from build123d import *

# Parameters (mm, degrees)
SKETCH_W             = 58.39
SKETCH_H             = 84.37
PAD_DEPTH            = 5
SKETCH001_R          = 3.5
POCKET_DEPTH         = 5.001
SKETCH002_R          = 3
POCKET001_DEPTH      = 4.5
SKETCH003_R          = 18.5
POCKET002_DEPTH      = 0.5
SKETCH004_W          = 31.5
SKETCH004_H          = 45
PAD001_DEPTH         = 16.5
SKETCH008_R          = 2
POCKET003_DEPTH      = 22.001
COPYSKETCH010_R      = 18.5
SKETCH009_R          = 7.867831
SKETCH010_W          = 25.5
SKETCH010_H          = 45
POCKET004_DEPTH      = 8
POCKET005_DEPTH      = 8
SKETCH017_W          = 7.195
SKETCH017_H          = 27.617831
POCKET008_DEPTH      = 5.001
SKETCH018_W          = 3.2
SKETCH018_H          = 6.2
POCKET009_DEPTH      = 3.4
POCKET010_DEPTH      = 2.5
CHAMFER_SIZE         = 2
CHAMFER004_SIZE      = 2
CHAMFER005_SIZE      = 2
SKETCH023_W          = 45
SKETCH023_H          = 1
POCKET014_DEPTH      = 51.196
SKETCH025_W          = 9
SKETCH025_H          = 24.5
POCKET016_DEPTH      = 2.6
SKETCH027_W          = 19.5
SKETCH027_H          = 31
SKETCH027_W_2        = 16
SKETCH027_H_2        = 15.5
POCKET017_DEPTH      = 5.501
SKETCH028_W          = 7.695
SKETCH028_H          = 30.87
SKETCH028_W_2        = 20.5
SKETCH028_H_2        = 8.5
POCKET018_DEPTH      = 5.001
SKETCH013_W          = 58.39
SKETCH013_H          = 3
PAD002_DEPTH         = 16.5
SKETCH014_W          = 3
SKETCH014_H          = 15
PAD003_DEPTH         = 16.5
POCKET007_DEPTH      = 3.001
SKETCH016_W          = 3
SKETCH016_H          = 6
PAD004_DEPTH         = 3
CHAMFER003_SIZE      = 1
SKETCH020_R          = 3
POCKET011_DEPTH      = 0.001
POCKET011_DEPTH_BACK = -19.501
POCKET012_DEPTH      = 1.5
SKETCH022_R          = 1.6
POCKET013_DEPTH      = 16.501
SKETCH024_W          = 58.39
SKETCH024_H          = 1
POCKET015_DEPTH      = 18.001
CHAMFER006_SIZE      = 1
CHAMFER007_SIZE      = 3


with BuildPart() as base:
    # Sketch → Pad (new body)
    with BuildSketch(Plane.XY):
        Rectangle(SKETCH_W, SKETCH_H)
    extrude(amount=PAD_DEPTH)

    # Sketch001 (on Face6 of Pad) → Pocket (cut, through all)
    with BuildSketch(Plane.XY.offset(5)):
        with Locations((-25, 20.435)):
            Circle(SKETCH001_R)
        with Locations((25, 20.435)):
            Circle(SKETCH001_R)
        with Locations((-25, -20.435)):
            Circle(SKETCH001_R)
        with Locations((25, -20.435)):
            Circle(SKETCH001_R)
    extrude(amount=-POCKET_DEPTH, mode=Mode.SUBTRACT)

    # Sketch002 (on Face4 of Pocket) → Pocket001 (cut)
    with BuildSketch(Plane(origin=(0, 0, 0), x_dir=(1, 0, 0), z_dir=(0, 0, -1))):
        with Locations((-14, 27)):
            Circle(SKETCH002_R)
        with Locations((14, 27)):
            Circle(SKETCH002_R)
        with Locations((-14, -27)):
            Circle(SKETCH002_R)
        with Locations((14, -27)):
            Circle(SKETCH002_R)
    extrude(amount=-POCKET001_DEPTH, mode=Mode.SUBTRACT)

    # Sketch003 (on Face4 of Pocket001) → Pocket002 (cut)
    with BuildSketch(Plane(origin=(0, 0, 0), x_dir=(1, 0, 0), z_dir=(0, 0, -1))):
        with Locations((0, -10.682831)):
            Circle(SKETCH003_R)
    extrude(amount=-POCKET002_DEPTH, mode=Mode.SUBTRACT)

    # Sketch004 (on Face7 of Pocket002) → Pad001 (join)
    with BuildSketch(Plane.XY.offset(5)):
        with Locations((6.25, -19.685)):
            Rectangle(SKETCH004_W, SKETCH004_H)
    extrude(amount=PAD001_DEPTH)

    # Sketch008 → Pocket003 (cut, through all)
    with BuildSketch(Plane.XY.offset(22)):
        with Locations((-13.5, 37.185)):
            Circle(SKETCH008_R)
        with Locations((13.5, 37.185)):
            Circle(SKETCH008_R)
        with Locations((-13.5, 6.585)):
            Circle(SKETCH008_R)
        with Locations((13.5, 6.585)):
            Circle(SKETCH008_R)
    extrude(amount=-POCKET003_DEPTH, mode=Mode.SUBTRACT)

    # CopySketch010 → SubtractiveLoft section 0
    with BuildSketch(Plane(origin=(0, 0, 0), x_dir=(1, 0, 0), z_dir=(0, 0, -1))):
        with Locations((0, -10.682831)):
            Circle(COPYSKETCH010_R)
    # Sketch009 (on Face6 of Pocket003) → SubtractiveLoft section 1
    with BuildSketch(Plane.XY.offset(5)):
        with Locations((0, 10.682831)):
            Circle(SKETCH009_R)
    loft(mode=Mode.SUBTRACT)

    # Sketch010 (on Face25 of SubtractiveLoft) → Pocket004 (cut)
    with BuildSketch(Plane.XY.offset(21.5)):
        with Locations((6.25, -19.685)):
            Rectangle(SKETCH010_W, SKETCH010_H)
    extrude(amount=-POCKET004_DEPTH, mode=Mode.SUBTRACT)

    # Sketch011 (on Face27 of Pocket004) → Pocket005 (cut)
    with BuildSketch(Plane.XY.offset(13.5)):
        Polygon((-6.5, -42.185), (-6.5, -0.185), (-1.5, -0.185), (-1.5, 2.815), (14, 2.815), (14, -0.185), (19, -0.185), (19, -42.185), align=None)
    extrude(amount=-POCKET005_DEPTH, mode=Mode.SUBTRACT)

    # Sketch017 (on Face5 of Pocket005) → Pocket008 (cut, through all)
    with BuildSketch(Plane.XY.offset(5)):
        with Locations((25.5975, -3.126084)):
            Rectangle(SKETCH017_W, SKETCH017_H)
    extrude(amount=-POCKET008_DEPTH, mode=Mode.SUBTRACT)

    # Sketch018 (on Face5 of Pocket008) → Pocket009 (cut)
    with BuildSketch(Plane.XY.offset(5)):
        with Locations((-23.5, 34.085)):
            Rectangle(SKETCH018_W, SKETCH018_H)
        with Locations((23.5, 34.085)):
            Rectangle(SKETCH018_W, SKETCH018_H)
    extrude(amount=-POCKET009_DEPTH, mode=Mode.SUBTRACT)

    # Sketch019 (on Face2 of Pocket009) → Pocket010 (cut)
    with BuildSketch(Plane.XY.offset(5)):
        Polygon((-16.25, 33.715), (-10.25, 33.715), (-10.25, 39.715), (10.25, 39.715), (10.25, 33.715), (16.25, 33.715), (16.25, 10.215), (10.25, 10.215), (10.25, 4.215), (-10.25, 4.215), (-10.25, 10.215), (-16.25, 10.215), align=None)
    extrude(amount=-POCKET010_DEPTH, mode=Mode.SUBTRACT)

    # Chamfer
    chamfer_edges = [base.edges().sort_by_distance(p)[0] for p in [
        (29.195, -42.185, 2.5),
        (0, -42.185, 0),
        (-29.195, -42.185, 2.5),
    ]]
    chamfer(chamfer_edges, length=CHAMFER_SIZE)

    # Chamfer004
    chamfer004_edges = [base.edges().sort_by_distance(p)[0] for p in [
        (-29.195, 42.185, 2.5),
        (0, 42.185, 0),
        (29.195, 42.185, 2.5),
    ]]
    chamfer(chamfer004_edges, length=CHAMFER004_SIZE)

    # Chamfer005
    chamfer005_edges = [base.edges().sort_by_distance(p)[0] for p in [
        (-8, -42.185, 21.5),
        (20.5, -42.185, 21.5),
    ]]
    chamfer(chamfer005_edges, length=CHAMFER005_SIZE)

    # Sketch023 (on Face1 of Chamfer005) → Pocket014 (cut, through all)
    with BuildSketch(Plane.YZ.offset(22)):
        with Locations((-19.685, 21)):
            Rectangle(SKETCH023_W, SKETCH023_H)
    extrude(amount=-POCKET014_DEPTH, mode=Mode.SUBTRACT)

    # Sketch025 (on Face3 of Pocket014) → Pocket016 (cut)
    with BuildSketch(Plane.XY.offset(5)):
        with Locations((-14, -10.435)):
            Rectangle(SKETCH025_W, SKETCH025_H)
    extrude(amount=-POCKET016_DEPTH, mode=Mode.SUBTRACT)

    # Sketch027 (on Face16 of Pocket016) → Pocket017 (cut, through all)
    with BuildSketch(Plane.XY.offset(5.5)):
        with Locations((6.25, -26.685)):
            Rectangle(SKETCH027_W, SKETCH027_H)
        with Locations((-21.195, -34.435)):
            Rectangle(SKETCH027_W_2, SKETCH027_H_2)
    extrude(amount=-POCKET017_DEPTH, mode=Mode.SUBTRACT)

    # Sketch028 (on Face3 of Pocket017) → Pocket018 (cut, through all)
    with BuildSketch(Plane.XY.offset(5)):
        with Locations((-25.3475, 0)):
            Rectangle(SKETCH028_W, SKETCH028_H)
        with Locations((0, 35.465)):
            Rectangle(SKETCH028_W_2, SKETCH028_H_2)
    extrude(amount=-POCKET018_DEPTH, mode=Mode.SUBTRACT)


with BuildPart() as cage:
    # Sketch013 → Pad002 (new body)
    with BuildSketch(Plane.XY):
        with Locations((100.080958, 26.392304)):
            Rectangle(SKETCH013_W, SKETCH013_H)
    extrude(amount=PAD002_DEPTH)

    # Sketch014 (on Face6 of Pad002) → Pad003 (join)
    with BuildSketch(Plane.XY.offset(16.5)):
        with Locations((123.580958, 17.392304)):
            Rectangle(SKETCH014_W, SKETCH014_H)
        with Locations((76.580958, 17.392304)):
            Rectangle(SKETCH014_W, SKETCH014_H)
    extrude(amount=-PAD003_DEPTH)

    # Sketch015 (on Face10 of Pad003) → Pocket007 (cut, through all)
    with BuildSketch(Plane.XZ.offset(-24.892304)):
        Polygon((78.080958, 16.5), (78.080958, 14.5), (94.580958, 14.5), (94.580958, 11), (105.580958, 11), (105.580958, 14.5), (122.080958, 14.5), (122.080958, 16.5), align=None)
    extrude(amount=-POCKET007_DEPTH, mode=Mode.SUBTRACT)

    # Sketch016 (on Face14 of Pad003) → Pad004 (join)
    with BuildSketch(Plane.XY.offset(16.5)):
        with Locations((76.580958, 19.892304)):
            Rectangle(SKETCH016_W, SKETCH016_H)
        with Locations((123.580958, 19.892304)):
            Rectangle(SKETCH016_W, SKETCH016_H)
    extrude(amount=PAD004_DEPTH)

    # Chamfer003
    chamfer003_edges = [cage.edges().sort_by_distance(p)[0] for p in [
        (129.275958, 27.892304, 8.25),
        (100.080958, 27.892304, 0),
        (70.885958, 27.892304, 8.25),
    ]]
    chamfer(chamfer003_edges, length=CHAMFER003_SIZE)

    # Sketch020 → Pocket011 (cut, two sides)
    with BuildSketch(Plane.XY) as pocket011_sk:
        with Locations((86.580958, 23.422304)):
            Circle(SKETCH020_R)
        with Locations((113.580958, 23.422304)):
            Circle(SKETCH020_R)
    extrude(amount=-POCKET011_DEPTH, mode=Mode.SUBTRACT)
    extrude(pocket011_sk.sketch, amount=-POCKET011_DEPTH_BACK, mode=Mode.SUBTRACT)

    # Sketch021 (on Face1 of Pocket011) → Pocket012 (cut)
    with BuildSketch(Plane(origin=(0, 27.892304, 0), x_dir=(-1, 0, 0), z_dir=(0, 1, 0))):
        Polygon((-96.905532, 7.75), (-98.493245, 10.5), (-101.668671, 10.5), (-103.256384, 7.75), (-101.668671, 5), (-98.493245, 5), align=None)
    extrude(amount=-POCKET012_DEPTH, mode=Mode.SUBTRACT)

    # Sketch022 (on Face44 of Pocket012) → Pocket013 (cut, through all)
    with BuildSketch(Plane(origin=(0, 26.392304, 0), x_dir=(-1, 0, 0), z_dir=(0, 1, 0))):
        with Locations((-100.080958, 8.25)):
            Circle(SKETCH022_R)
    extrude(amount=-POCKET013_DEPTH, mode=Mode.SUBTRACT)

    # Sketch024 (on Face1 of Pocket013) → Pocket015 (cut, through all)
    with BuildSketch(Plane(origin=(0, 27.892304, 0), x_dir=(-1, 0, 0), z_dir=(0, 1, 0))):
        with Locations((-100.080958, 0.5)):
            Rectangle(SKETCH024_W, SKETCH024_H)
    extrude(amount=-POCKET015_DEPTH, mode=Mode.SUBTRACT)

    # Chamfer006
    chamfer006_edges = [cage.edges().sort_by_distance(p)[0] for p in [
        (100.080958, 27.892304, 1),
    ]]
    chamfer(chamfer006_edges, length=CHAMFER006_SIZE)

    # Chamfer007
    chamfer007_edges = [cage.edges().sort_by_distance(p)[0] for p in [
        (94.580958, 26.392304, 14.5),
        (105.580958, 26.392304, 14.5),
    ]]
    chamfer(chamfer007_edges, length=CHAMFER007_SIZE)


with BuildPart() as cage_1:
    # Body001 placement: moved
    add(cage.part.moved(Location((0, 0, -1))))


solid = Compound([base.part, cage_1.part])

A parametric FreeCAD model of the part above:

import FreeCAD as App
import Part
import Sketcher
from FreeCAD import Vector
Q = App.Units.Quantity


def edges_at(feature, points):
    """Names of the edges that pass closest to the given points."""
    edges = feature.Shape.Edges
    near = lambda p: min(range(len(edges)), key=lambda i: edges[i].distToShape(Part.Vertex(*p))[0])
    return sorted({f"Edge{near(p) + 1}" for p in points})

doc = App.newDocument("Part")
body = doc.addObject("PartDesign::Body", "Body")

# Sketch on XY plane
sketch1 = doc.addObject("Sketcher::SketchObject", "Sketch")
body.addObject(sketch1)
sketch1.AttachmentSupport = (doc.XY_Plane, [""])
sketch1.MapMode = "FlatFace"
sketch1.addGeometry([
    Part.LineSegment(Vector(-29, 42, 0), Vector(-29, -42, 0)),
    Part.LineSegment(Vector(-29, -42, 0), Vector(29, -42, 0)),
    Part.LineSegment(Vector(29, -42, 0), Vector(29, 42, 0)),
    Part.LineSegment(Vector(29, 42, 0), Vector(-29, 42, 0)),
], False)
sketch1.addConstraint([
    Sketcher.Constraint("Coincident", 0, 2, 1, 1),
    Sketcher.Constraint("Coincident", 1, 2, 2, 1),
    Sketcher.Constraint("Coincident", 2, 2, 3, 1),
    Sketcher.Constraint("Coincident", 3, 2, 0, 1),
    Sketcher.Constraint("Vertical", 0),
    Sketcher.Constraint("Horizontal", 1),
    Sketcher.Constraint("Vertical", 2),
    Sketcher.Constraint("Horizontal", 3),
    Sketcher.Constraint("Symmetric", 0, 2, 2, 2, -1, 1),
    Sketcher.Constraint("DistanceX", 1, 1, 1, 2, 58.39),
    Sketcher.Constraint("DistanceY", 0, 2, 0, 1, 84.37),
])
pad1 = doc.addObject("PartDesign::Pad", "Pad")
body.addObject(pad1)
pad1.Profile = sketch1
pad1.Length = 5

# Sketch on XY plane
sketch2 = doc.addObject("Sketcher::SketchObject", "Sketch001")
body.addObject(sketch2)
sketch2.AttachmentSupport = (doc.XY_Plane, [""])
sketch2.MapMode = "FlatFace"
sketch2.AttachmentOffset = App.Placement(Vector(0, 0, 5), App.Rotation())
sketch2.addGeometry([
    Part.Circle(Vector(-25, 20.4, 0), Vector(0, 0, 1), 3.5),
    Part.Circle(Vector(25, 20.4, 0), Vector(0, 0, 1), 3.5),
    Part.Circle(Vector(-25, -20.4, 0), Vector(0, 0, 1), 3.5),
    Part.Circle(Vector(25, -20.4, 0), Vector(0, 0, 1), 3.5),
], False)
sketch2.addConstraint([
    Sketcher.Constraint("Equal", 0, 1),
    Sketcher.Constraint("Equal", 1, 2),
    Sketcher.Constraint("Equal", 2, 3),
    Sketcher.Constraint("Symmetric", 1, 3, 2, 3, -1, 1),
    Sketcher.Constraint("Symmetric", 0, 3, 3, 3, -1, 1),
    Sketcher.Constraint("Symmetric", 0, 3, 1, 3, -2),
    Sketcher.Constraint("Diameter", 0, 7.0),
    Sketcher.Constraint("DistanceX", 0, 3, -1, 1, 25.0),
    Sketcher.Constraint("DistanceY", 2, 3, 0, 3, 40.87),
])
pocket1 = doc.addObject("PartDesign::Pocket", "Pocket")
body.addObject(pocket1)
pocket1.Profile = sketch2
pocket1.Type = "ThroughAll"

# Sketch on XY plane
sketch3 = doc.addObject("Sketcher::SketchObject", "Sketch002")
body.addObject(sketch3)
sketch3.AttachmentSupport = (doc.XY_Plane, [""])
sketch3.MapMode = "FlatFace"
sketch3.addGeometry([
    Part.Circle(Vector(-14, -27, 0), Vector(0, 0, 1), 3),
    Part.Circle(Vector(14, -27, 0), Vector(0, 0, 1), 3),
    Part.Circle(Vector(-14, 27, 0), Vector(0, 0, 1), 3),
    Part.Circle(Vector(14, 27, 0), Vector(0, 0, 1), 3),
], False)
sketch3.addConstraint([
    Sketcher.Constraint("Equal", 0, 1),
    Sketcher.Constraint("Equal", 1, 2),
    Sketcher.Constraint("Equal", 2, 3),
    Sketcher.Constraint("Symmetric", 1, 3, 2, 3, -1, 1),
    Sketcher.Constraint("Symmetric", 0, 3, 3, 3, -1, 1),
    Sketcher.Constraint("Symmetric", 0, 3, 1, 3, -2),
    Sketcher.Constraint("Diameter", 0, 6.0),
    Sketcher.Constraint("DistanceX", 0, 3, -1, 1, 14.0),
    Sketcher.Constraint("DistanceY", 0, 3, -1, 1, 27.0),
])
pocket2 = doc.addObject("PartDesign::Pocket", "Pocket001")
body.addObject(pocket2)
pocket2.Profile = sketch3
pocket2.Length = 4.5
pocket2.Reversed = True

# Sketch on XY plane
sketch4 = doc.addObject("Sketcher::SketchObject", "Sketch003")
body.addObject(sketch4)
sketch4.AttachmentSupport = (doc.XY_Plane, [""])
sketch4.MapMode = "FlatFace"
sketch4.addGeometry(Part.Circle(Vector(0, 11, 0), Vector(0, 0, 1), 18), False)
sketch4.addConstraint([
    Sketcher.Constraint("PointOnObject", 0, 3, -2),
    Sketcher.Constraint("Diameter", 0, 37.0),
    Sketcher.Constraint("DistanceY", -1, 1, 0, 3, 10.682831),
])
pocket3 = doc.addObject("PartDesign::Pocket", "Pocket002")
body.addObject(pocket3)
pocket3.Profile = sketch4
pocket3.Length = 0.5
pocket3.Reversed = True

# Sketch on XY plane
sketch5 = doc.addObject("Sketcher::SketchObject", "Sketch004")
body.addObject(sketch5)
sketch5.AttachmentSupport = (doc.XY_Plane, [""])
sketch5.MapMode = "FlatFace"
sketch5.AttachmentOffset = App.Placement(Vector(0, 0, 5), App.Rotation())
sketch5.addGeometry([
    Part.LineSegment(Vector(-10, 3, 0), Vector(-10, -42, 0)),
    Part.LineSegment(Vector(-10, -42, 0), Vector(22, -42, 0)),
    Part.LineSegment(Vector(22, -42, 0), Vector(22, 3, 0)),
    Part.LineSegment(Vector(22, 3, 0), Vector(-10, 3, 0)),
], False)
sketch5.addConstraint([
    Sketcher.Constraint("Coincident", 0, 2, 1, 1),
    Sketcher.Constraint("Coincident", 1, 2, 2, 1),
    Sketcher.Constraint("Coincident", 2, 2, 3, 1),
    Sketcher.Constraint("Coincident", 3, 2, 0, 1),
    Sketcher.Constraint("Vertical", 0),
    Sketcher.Constraint("Horizontal", 1),
    Sketcher.Constraint("Vertical", 2),
    Sketcher.Constraint("Horizontal", 3),
    Sketcher.Constraint("DistanceY", 0, 2, 0, 1, 45.0),
    Sketcher.Constraint("DistanceX", 1, 1, 1, 2, 31.5),
    Sketcher.Constraint("DistanceX", -1, 1, 1, 2, 22.0),
    Sketcher.Constraint("DistanceY", 0, 2, -1, 1, 42.185),
])
pad2 = doc.addObject("PartDesign::Pad", "Pad001")
body.addObject(pad2)
pad2.Profile = sketch5
pad2.Length = 16.5

# Sketch on XY plane
sketch6 = doc.addObject("Sketcher::SketchObject", "Sketch005")
body.addObject(sketch6)
sketch6.AttachmentSupport = (doc.XY_Plane, [""])
sketch6.MapMode = "FlatFace"
sketch6.AttachmentOffset = App.Placement(Vector(0, 0, 22), App.Rotation())
sketch6.addGeometry([
    Part.Circle(Vector(-13.5, 37.2, 0), Vector(0, 0, 1), 2),
    Part.Circle(Vector(13.5, 37.2, 0), Vector(0, 0, 1), 2),
    Part.Circle(Vector(-13.5, 6.6, 0), Vector(0, 0, 1), 2),
    Part.Circle(Vector(13.5, 6.6, 0), Vector(0, 0, 1), 2),
], False)
sketch6.addConstraint([
    Sketcher.Constraint("Equal", 0, 1),
    Sketcher.Constraint("Equal", 1, 2),
    Sketcher.Constraint("Equal", 2, 3),
    Sketcher.Constraint("Symmetric", 0, 3, 1, 3, -2),
    Sketcher.Constraint("Symmetric", 2, 3, 3, 3, -2),
    Sketcher.Constraint("Vertical", 0, 3, 2, 3),
    Sketcher.Constraint("Diameter", 0, 4.0),
    Sketcher.Constraint("DistanceX", 0, 3, 1, 3, 27.0),
    Sketcher.Constraint("DistanceY", 2, 3, 0, 3, 30.6),
    Sketcher.Constraint("DistanceY", -1, 1, 0, 3, 37.185),
])
pocket4 = doc.addObject("PartDesign::Pocket", "Pocket003")
body.addObject(pocket4)
pocket4.Profile = sketch6
pocket4.Type = "ThroughAll"

# Sketch on XY plane
sketch7 = doc.addObject("Sketcher::SketchObject", "Sketch006")
body.addObject(sketch7)
sketch7.AttachmentSupport = (doc.XY_Plane, [""])
sketch7.MapMode = "FlatFace"
sketch7.addGeometry(Part.Circle(Vector(0, 11, 0), Vector(0, 0, 1), 18), False)
sketch7.addConstraint([
    Sketcher.Constraint("PointOnObject", 0, 3, -2),
    Sketcher.Constraint("Diameter", 0, 37.0),
    Sketcher.Constraint("DistanceY", -1, 1, 0, 3, 10.682831),
])

# Sketch on XY plane
sketch8 = doc.addObject("Sketcher::SketchObject", "Sketch007")
body.addObject(sketch8)
sketch8.AttachmentSupport = (doc.XY_Plane, [""])
sketch8.MapMode = "FlatFace"
sketch8.AttachmentOffset = App.Placement(Vector(0, 0, 5), App.Rotation())
sketch8.addGeometry(Part.Circle(Vector(0, 11, 0), Vector(0, 0, 1), 8), False)
sketch8.addConstraint([
    Sketcher.Constraint("PointOnObject", 0, 3, -2),
    Sketcher.Constraint("Diameter", 0, 15.735662),
    Sketcher.Constraint("DistanceY", -1, 1, 0, 3, 10.682831),
])

subtractiveloft = doc.addObject("PartDesign::SubtractiveLoft", "SubtractiveLoft")
body.addObject(subtractiveloft)
subtractiveloft.Profile = sketch7
subtractiveloft.Sections = [sketch8]

# Sketch on XY plane
sketch9 = doc.addObject("Sketcher::SketchObject", "Sketch008")
body.addObject(sketch9)
sketch9.AttachmentSupport = (doc.XY_Plane, [""])
sketch9.MapMode = "FlatFace"
sketch9.AttachmentOffset = App.Placement(Vector(0, 0, 21.5), App.Rotation())
sketch9.addGeometry([
    Part.LineSegment(Vector(-6, 3, 0), Vector(-6, -42, 0)),
    Part.LineSegment(Vector(-6, -42, 0), Vector(19, -42, 0)),
    Part.LineSegment(Vector(19, -42, 0), Vector(19, 3, 0)),
    Part.LineSegment(Vector(19, 3, 0), Vector(-6, 3, 0)),
], False)
sketch9.addConstraint([
    Sketcher.Constraint("Coincident", 0, 2, 1, 1),
    Sketcher.Constraint("Coincident", 1, 2, 2, 1),
    Sketcher.Constraint("Coincident", 2, 2, 3, 1),
    Sketcher.Constraint("Coincident", 3, 2, 0, 1),
    Sketcher.Constraint("Vertical", 0),
    Sketcher.Constraint("Horizontal", 1),
    Sketcher.Constraint("Vertical", 2),
    Sketcher.Constraint("Horizontal", 3),
    Sketcher.Constraint("DistanceY", 0, 2, 0, 1, 45.0),
    Sketcher.Constraint("DistanceX", 1, 1, 1, 2, 25.5),
    Sketcher.Constraint("DistanceX", -1, 1, 1, 2, 19.0),
    Sketcher.Constraint("DistanceY", 0, 2, -1, 1, 42.185),
])
pocket5 = doc.addObject("PartDesign::Pocket", "Pocket004")
body.addObject(pocket5)
pocket5.Profile = sketch9
pocket5.Length = 8

# Sketch on XY plane
sketch10 = doc.addObject("Sketcher::SketchObject", "Sketch009")
body.addObject(sketch10)
sketch10.AttachmentSupport = (doc.XY_Plane, [""])
sketch10.MapMode = "FlatFace"
sketch10.AttachmentOffset = App.Placement(Vector(0, 0, 13.5), App.Rotation())
sketch10.addGeometry([
    Part.LineSegment(Vector(-6.5, -0.2, 0), Vector(-6.5, -42.2, 0)),  # 0
    Part.LineSegment(Vector(-6.5, -42.2, 0), Vector(19, -42.2, 0)),  # 1
    Part.LineSegment(Vector(19, -42.2, 0), Vector(19, -0.2, 0)),  # 2
    Part.LineSegment(Vector(19, -0.2, 0), Vector(14, -0.2, 0)),  # 3
    Part.LineSegment(Vector(14, -0.2, 0), Vector(14, 2.8, 0)),  # 4
    Part.LineSegment(Vector(14, 2.8, 0), Vector(-1.5, 2.8, 0)),  # 5
    Part.LineSegment(Vector(-1.5, 2.8, 0), Vector(-1.5, -0.2, 0)),  # 6
    Part.LineSegment(Vector(-1.5, -0.2, 0), Vector(-6.5, -0.2, 0)),  # 7
], False)
sketch10.addConstraint([
    Sketcher.Constraint("Coincident", 0, 2, 1, 1),
    Sketcher.Constraint("Coincident", 1, 2, 2, 1),
    Sketcher.Constraint("Coincident", 2, 2, 3, 1),
    Sketcher.Constraint("Coincident", 3, 2, 4, 1),
    Sketcher.Constraint("Coincident", 4, 2, 5, 1),
    Sketcher.Constraint("Coincident", 5, 2, 6, 1),
    Sketcher.Constraint("Coincident", 6, 2, 7, 1),
    Sketcher.Constraint("Coincident", 7, 2, 0, 1),
    Sketcher.Constraint("Vertical", 0),
    Sketcher.Constraint("Horizontal", 1),
    Sketcher.Constraint("Vertical", 2),
    Sketcher.Constraint("Horizontal", 3),
    Sketcher.Constraint("Vertical", 4),
    Sketcher.Constraint("Horizontal", 5),
    Sketcher.Constraint("Vertical", 6),
    Sketcher.Constraint("Horizontal", 7),
    Sketcher.Constraint("Horizontal", 3, 2, 6, 2),
    Sketcher.Constraint("Equal", 3, 7),
    Sketcher.Constraint("DistanceX", 3, 2, 3, 1, 5.0),
    Sketcher.Constraint("DistanceY", 0, 2, 0, 1, 42.0),
    Sketcher.Constraint("DistanceY", 4, 1, 4, 2, 3.0),
    Sketcher.Constraint("DistanceX", 1, 1, 1, 2, 25.5),
    Sketcher.Constraint("DistanceX", -1, 1, 1, 2, 19.0),
    Sketcher.Constraint("DistanceY", 0, 2, -1, 1, 42.185),
])
pocket6 = doc.addObject("PartDesign::Pocket", "Pocket005")
body.addObject(pocket6)
pocket6.Profile = sketch10
pocket6.Length = 8

# Sketch on XY plane
sketch11 = doc.addObject("Sketcher::SketchObject", "Sketch010")
body.addObject(sketch11)
sketch11.AttachmentSupport = (doc.XY_Plane, [""])
sketch11.MapMode = "FlatFace"
sketch11.AttachmentOffset = App.Placement(Vector(0, 0, 5), App.Rotation())
sketch11.addGeometry([
    Part.LineSegment(Vector(22, 11, 0), Vector(22, -17, 0)),
    Part.LineSegment(Vector(22, -17, 0), Vector(29, -17, 0)),
    Part.LineSegment(Vector(29, -17, 0), Vector(29, 11, 0)),
    Part.LineSegment(Vector(29, 11, 0), Vector(22, 11, 0)),
], False)
sketch11.addConstraint([
    Sketcher.Constraint("Coincident", 0, 2, 1, 1),
    Sketcher.Constraint("Coincident", 1, 2, 2, 1),
    Sketcher.Constraint("Coincident", 2, 2, 3, 1),
    Sketcher.Constraint("Coincident", 3, 2, 0, 1),
    Sketcher.Constraint("Vertical", 0),
    Sketcher.Constraint("Horizontal", 1),
    Sketcher.Constraint("Vertical", 2),
    Sketcher.Constraint("Horizontal", 3),
    Sketcher.Constraint("DistanceX", -1, 1, 0, 2, 22.0),
    Sketcher.Constraint("DistanceX", 1, 1, 1, 2, 7.195),
    Sketcher.Constraint("DistanceY", 0, 2, -1, 1, 16.934999),
    Sketcher.Constraint("DistanceY", 0, 2, 0, 1, 27.617831),
])
pocket7 = doc.addObject("PartDesign::Pocket", "Pocket006")
body.addObject(pocket7)
pocket7.Profile = sketch11
pocket7.Type = "ThroughAll"

# Sketch on XY plane
sketch12 = doc.addObject("Sketcher::SketchObject", "Sketch011")
body.addObject(sketch12)
sketch12.AttachmentSupport = (doc.XY_Plane, [""])
sketch12.MapMode = "FlatFace"
sketch12.AttachmentOffset = App.Placement(Vector(0, 0, 5), App.Rotation())
sketch12.addGeometry([
    Part.LineSegment(Vector(-25.1, 37.2, 0), Vector(-25.1, 31, 0)),  # 0
    Part.LineSegment(Vector(-25.1, 31, 0), Vector(-21.9, 31, 0)),  # 1
    Part.LineSegment(Vector(-21.9, 31, 0), Vector(-21.9, 37.2, 0)),  # 2
    Part.LineSegment(Vector(-21.9, 37.2, 0), Vector(-25.1, 37.2, 0)),  # 3
    Part.LineSegment(Vector(21.9, 37.2, 0), Vector(21.9, 31, 0)),  # 4
    Part.LineSegment(Vector(21.9, 31, 0), Vector(25.1, 31, 0)),  # 5
    Part.LineSegment(Vector(25.1, 31, 0), Vector(25.1, 37.2, 0)),  # 6
    Part.LineSegment(Vector(25.1, 37.2, 0), Vector(21.9, 37.2, 0)),  # 7
], False)
sketch12.addConstraint([
    Sketcher.Constraint("Coincident", 0, 2, 1, 1),
    Sketcher.Constraint("Coincident", 1, 2, 2, 1),
    Sketcher.Constraint("Coincident", 2, 2, 3, 1),
    Sketcher.Constraint("Coincident", 3, 2, 0, 1),
    Sketcher.Constraint("Coincident", 4, 2, 5, 1),
    Sketcher.Constraint("Coincident", 5, 2, 6, 1),
    Sketcher.Constraint("Coincident", 6, 2, 7, 1),
    Sketcher.Constraint("Coincident", 7, 2, 4, 1),
    Sketcher.Constraint("Vertical", 0),
    Sketcher.Constraint("Horizontal", 1),
    Sketcher.Constraint("Vertical", 2),
    Sketcher.Constraint("Horizontal", 3),
    Sketcher.Constraint("Vertical", 4),
    Sketcher.Constraint("Horizontal", 5),
    Sketcher.Constraint("Vertical", 6),
    Sketcher.Constraint("Horizontal", 7),
    Sketcher.Constraint("Symmetric", 1, 2, 4, 2, -2),
    Sketcher.Constraint("Symmetric", 3, 2, 6, 2, -2),
    Sketcher.Constraint("DistanceX", 1, 1, 1, 2, 3.2),
    Sketcher.Constraint("DistanceY", 0, 2, 0, 1, 6.2),
    Sketcher.Constraint("DistanceX", 0, 2, 4, 2, 47.0),
    Sketcher.Constraint("DistanceY", -1, 1, 0, 2, 30.985),
])
pocket8 = doc.addObject("PartDesign::Pocket", "Pocket007")
body.addObject(pocket8)
pocket8.Profile = sketch12
pocket8.Length = 3.4

# Sketch on XY plane
sketch13 = doc.addObject("Sketcher::SketchObject", "Sketch012")
body.addObject(sketch13)
sketch13.AttachmentSupport = (doc.XY_Plane, [""])
sketch13.MapMode = "FlatFace"
sketch13.AttachmentOffset = App.Placement(Vector(0, 0, 5), App.Rotation())
sketch13.addGeometry([
    Part.LineSegment(Vector(-10, 34, 0), Vector(-16, 34, 0)),  # 0
    Part.LineSegment(Vector(-16, 34, 0), Vector(-16, 10, 0)),  # 1
    Part.LineSegment(Vector(-16, 10, 0), Vector(-10, 10, 0)),  # 2
    Part.LineSegment(Vector(-10, 10, 0), Vector(-10, 4, 0)),  # 3
    Part.LineSegment(Vector(-10, 4, 0), Vector(10, 4, 0)),  # 4
    Part.LineSegment(Vector(10, 4, 0), Vector(10, 10, 0)),  # 5
    Part.LineSegment(Vector(10, 10, 0), Vector(16, 10, 0)),  # 6
    Part.LineSegment(Vector(16, 10, 0), Vector(16, 34, 0)),  # 7
    Part.LineSegment(Vector(16, 34, 0), Vector(10, 34, 0)),  # 8
    Part.LineSegment(Vector(10, 34, 0), Vector(10, 40, 0)),  # 9
    Part.LineSegment(Vector(10, 40, 0), Vector(-10, 40, 0)),  # 10
    Part.LineSegment(Vector(-10, 40, 0), Vector(-10, 34, 0)),  # 11
], False)
sketch13.addConstraint([
    Sketcher.Constraint("Coincident", 0, 2, 1, 1),
    Sketcher.Constraint("Coincident", 1, 2, 2, 1),
    Sketcher.Constraint("Coincident", 2, 2, 3, 1),
    Sketcher.Constraint("Coincident", 3, 2, 4, 1),
    Sketcher.Constraint("Coincident", 4, 2, 5, 1),
    Sketcher.Constraint("Coincident", 5, 2, 6, 1),
    Sketcher.Constraint("Coincident", 6, 2, 7, 1),
    Sketcher.Constraint("Coincident", 7, 2, 8, 1),
    Sketcher.Constraint("Coincident", 8, 2, 9, 1),
    Sketcher.Constraint("Coincident", 9, 2, 10, 1),
    Sketcher.Constraint("Coincident", 10, 2, 11, 1),
    Sketcher.Constraint("Coincident", 11, 2, 0, 1),
    Sketcher.Constraint("Horizontal", 0),
    Sketcher.Constraint("Vertical", 1),
    Sketcher.Constraint("Horizontal", 2),
    Sketcher.Constraint("Vertical", 3),
    Sketcher.Constraint("Horizontal", 4),
    Sketcher.Constraint("Vertical", 5),
    Sketcher.Constraint("Horizontal", 6),
    Sketcher.Constraint("Vertical", 7),
    Sketcher.Constraint("Horizontal", 8),
    Sketcher.Constraint("Vertical", 9),
    Sketcher.Constraint("Horizontal", 10),
    Sketcher.Constraint("Vertical", 11),
    Sketcher.Constraint("Symmetric", 2, 2, 5, 2, -2),
    Sketcher.Constraint("Symmetric", 0, 2, 7, 2, -2),
    Sketcher.Constraint("Vertical", 5, 2, 8, 2),
    Sketcher.Constraint("Vertical", 3, 2, 10, 2),
    Sketcher.Constraint("Equal", 8, 3),
    Sketcher.Constraint("Equal", 5, 9),
    Sketcher.Constraint("DistanceX", 0, 2, 0, 1, 6.0),
    Sketcher.Constraint("DistanceX", 4, 1, 4, 2, 20.5),
    Sketcher.Constraint("DistanceY", 1, 2, 1, 1, 23.5),
    Sketcher.Constraint("DistanceY", -1, 1, 0, 2, 33.715),
])
pocket9 = doc.addObject("PartDesign::Pocket", "Pocket008")
body.addObject(pocket9)
pocket9.Profile = sketch13
pocket9.Length = 2.5
doc.recompute()

chamfer = doc.addObject("PartDesign::Chamfer", "Chamfer")
body.addObject(chamfer)
chamfer.Base = (pocket9, edges_at(pocket9, [(29.195, -42.185, 2.5), (0, -42.185, 0), (-29.195, -42.185, 2.5)]))
chamfer.Size = 2
doc.recompute()

chamfer2 = doc.addObject("PartDesign::Chamfer", "Chamfer001")
body.addObject(chamfer2)
chamfer2.Base = (chamfer, edges_at(chamfer, [(-29.195, 42.185, 2.5), (0, 42.185, 0), (29.195, 42.185, 2.5)]))
chamfer2.Size = 2
doc.recompute()

chamfer3 = doc.addObject("PartDesign::Chamfer", "Chamfer002")
body.addObject(chamfer3)
chamfer3.Base = (chamfer2, edges_at(chamfer2, [(-8, -42.185, 21.5), (20.5, -42.185, 21.5)]))
chamfer3.Size = 2

# Sketch on YZ plane
sketch14 = doc.addObject("Sketcher::SketchObject", "Sketch013")
body.addObject(sketch14)
sketch14.AttachmentSupport = (doc.YZ_Plane, [""])
sketch14.MapMode = "FlatFace"
sketch14.AttachmentOffset = App.Placement(Vector(0, 0, 22), App.Rotation())
sketch14.addGeometry([
    Part.LineSegment(Vector(-42.2, 21.5, 0), Vector(-42.2, 20.5, 0)),
    Part.LineSegment(Vector(-42.2, 20.5, 0), Vector(2.8, 20.5, 0)),
    Part.LineSegment(Vector(2.8, 20.5, 0), Vector(2.8, 21.5, 0)),
    Part.LineSegment(Vector(2.8, 21.5, 0), Vector(-42.2, 21.5, 0)),
], False)
sketch14.addConstraint([
    Sketcher.Constraint("Coincident", 0, 2, 1, 1),
    Sketcher.Constraint("Coincident", 1, 2, 2, 1),
    Sketcher.Constraint("Coincident", 2, 2, 3, 1),
    Sketcher.Constraint("Coincident", 3, 2, 0, 1),
    Sketcher.Constraint("Vertical", 0),
    Sketcher.Constraint("Horizontal", 1),
    Sketcher.Constraint("Vertical", 2),
    Sketcher.Constraint("Horizontal", 3),
    Sketcher.Constraint("DistanceX", 1, 1, 1, 2, 45.0),
    Sketcher.Constraint("DistanceY", 0, 2, 0, 1, 1.0),
    Sketcher.Constraint("DistanceY", -1, 1, 0, 2, 20.5),
    Sketcher.Constraint("DistanceX", 0, 2, -1, 1, 42.185),
])
pocket10 = doc.addObject("PartDesign::Pocket", "Pocket009")
body.addObject(pocket10)
pocket10.Profile = sketch14
pocket10.Type = "ThroughAll"

# Sketch on XY plane
sketch15 = doc.addObject("Sketcher::SketchObject", "Sketch014")
body.addObject(sketch15)
sketch15.AttachmentSupport = (doc.XY_Plane, [""])
sketch15.MapMode = "FlatFace"
sketch15.AttachmentOffset = App.Placement(Vector(0, 0, 5), App.Rotation())
sketch15.addGeometry([
    Part.LineSegment(Vector(-18, 2, 0), Vector(-18, -23, 0)),
    Part.LineSegment(Vector(-18, -23, 0), Vector(-10, -23, 0)),
    Part.LineSegment(Vector(-10, -23, 0), Vector(-10, 2, 0)),
    Part.LineSegment(Vector(-10, 2, 0), Vector(-18, 2, 0)),
], False)
sketch15.addConstraint([
    Sketcher.Constraint("Coincident", 0, 2, 1, 1),
    Sketcher.Constraint("Coincident", 1, 2, 2, 1),
    Sketcher.Constraint("Coincident", 2, 2, 3, 1),
    Sketcher.Constraint("Coincident", 3, 2, 0, 1),
    Sketcher.Constraint("Vertical", 0),
    Sketcher.Constraint("Horizontal", 1),
    Sketcher.Constraint("Vertical", 2),
    Sketcher.Constraint("Horizontal", 3),
    Sketcher.Constraint("DistanceX", 1, 1, 1, 2, 9.0),
    Sketcher.Constraint("DistanceY", 0, 2, 0, 1, 24.5),
    Sketcher.Constraint("DistanceX", 0, 2, -1, 1, 18.5),
    Sketcher.Constraint("DistanceY", 0, 2, -1, 1, 22.685),
])
pocket11 = doc.addObject("PartDesign::Pocket", "Pocket010")
body.addObject(pocket11)
pocket11.Profile = sketch15
pocket11.Length = 2.6

# Sketch on XY plane
sketch16 = doc.addObject("Sketcher::SketchObject", "Sketch015")
body.addObject(sketch16)
sketch16.AttachmentSupport = (doc.XY_Plane, [""])
sketch16.MapMode = "FlatFace"
sketch16.AttachmentOffset = App.Placement(Vector(0, 0, 5.5), App.Rotation())
sketch16.addGeometry([
    Part.LineSegment(Vector(-4, -11, 0), Vector(-4, -42, 0)),  # 0
    Part.LineSegment(Vector(-4, -42, 0), Vector(16, -42, 0)),  # 1
    Part.LineSegment(Vector(16, -42, 0), Vector(16, -11, 0)),  # 2
    Part.LineSegment(Vector(16, -11, 0), Vector(-4, -11, 0)),  # 3
    Part.LineSegment(Vector(-29, -27, 0), Vector(-29, -42, 0)),  # 4
    Part.LineSegment(Vector(-29, -42, 0), Vector(-13, -42, 0)),  # 5
    Part.LineSegment(Vector(-13, -42, 0), Vector(-13, -27, 0)),  # 6
    Part.LineSegment(Vector(-13, -27, 0), Vector(-29, -27, 0)),  # 7
], False)
sketch16.addConstraint([
    Sketcher.Constraint("Coincident", 0, 2, 1, 1),
    Sketcher.Constraint("Coincident", 1, 2, 2, 1),
    Sketcher.Constraint("Coincident", 2, 2, 3, 1),
    Sketcher.Constraint("Coincident", 3, 2, 0, 1),
    Sketcher.Constraint("Coincident", 4, 2, 5, 1),
    Sketcher.Constraint("Coincident", 5, 2, 6, 1),
    Sketcher.Constraint("Coincident", 6, 2, 7, 1),
    Sketcher.Constraint("Coincident", 7, 2, 4, 1),
    Sketcher.Constraint("Vertical", 0),
    Sketcher.Constraint("Horizontal", 1),
    Sketcher.Constraint("Vertical", 2),
    Sketcher.Constraint("Horizontal", 3),
    Sketcher.Constraint("Vertical", 4),
    Sketcher.Constraint("Horizontal", 5),
    Sketcher.Constraint("Vertical", 6),
    Sketcher.Constraint("Horizontal", 7),
    Sketcher.Constraint("Horizontal", 1, 2, 4, 2),
    Sketcher.Constraint("DistanceX", 5, 1, 5, 2, 16.0),
    Sketcher.Constraint("DistanceY", 0, 2, 0, 1, 31.0),
    Sketcher.Constraint("DistanceX", 1, 1, 1, 2, 19.5),
    Sketcher.Constraint("DistanceY", 4, 2, 4, 1, 15.5),
    Sketcher.Constraint("DistanceX", -1, 1, 1, 2, 16.0),
    Sketcher.Constraint("DistanceY", 0, 2, -1, 1, 42.185),
    Sketcher.Constraint("DistanceX", 4, 2, -1, 1, 29.195),
])
pocket12 = doc.addObject("PartDesign::Pocket", "Pocket011")
body.addObject(pocket12)
pocket12.Profile = sketch16
pocket12.Type = "ThroughAll"

# Sketch on XY plane
sketch17 = doc.addObject("Sketcher::SketchObject", "Sketch016")
body.addObject(sketch17)
sketch17.AttachmentSupport = (doc.XY_Plane, [""])
sketch17.MapMode = "FlatFace"
sketch17.AttachmentOffset = App.Placement(Vector(0, 0, 5), App.Rotation())
sketch17.addGeometry([
    Part.LineSegment(Vector(-29, 15, 0), Vector(-29, -15, 0)),  # 0
    Part.LineSegment(Vector(-29, -15, 0), Vector(-22, -15, 0)),  # 1
    Part.LineSegment(Vector(-22, -15, 0), Vector(-22, 15, 0)),  # 2
    Part.LineSegment(Vector(-22, 15, 0), Vector(-29, 15, 0)),  # 3
    Part.LineSegment(Vector(-10, 40, 0), Vector(-10, 31, 0)),  # 4
    Part.LineSegment(Vector(-10, 31, 0), Vector(10, 31, 0)),  # 5
    Part.LineSegment(Vector(10, 31, 0), Vector(10, 40, 0)),  # 6
    Part.LineSegment(Vector(10, 40, 0), Vector(-10, 40, 0)),  # 7
], False)
sketch17.addConstraint([
    Sketcher.Constraint("Coincident", 0, 2, 1, 1),
    Sketcher.Constraint("Coincident", 1, 2, 2, 1),
    Sketcher.Constraint("Coincident", 2, 2, 3, 1),
    Sketcher.Constraint("Coincident", 3, 2, 0, 1),
    Sketcher.Constraint("Coincident", 4, 2, 5, 1),
    Sketcher.Constraint("Coincident", 5, 2, 6, 1),
    Sketcher.Constraint("Coincident", 6, 2, 7, 1),
    Sketcher.Constraint("Coincident", 7, 2, 4, 1),
    Sketcher.Constraint("Vertical", 0),
    Sketcher.Constraint("Horizontal", 1),
    Sketcher.Constraint("Vertical", 2),
    Sketcher.Constraint("Horizontal", 3),
    Sketcher.Constraint("Vertical", 4),
    Sketcher.Constraint("Horizontal", 5),
    Sketcher.Constraint("Vertical", 6),
    Sketcher.Constraint("Horizontal", 7),
    Sketcher.Constraint("DistanceX", 5, 1, 5, 2, 20.5),
    Sketcher.Constraint("DistanceY", 4, 2, 4, 1, 8.5),
    Sketcher.Constraint("DistanceY", 0, 2, 0, 1, 30.87),
    Sketcher.Constraint("DistanceX", 1, 2, -1, 1, 21.5),
    Sketcher.Constraint("DistanceX", 1, 1, 1, 2, 7.695),
    Sketcher.Constraint("DistanceX", 4, 2, -1, 1, 10.25),
    Sketcher.Constraint("DistanceY", 2, 2, 4, 2, 15.78),
    Sketcher.Constraint("DistanceY", 0, 2, -1, 1, 15.435),
])
pocket13 = doc.addObject("PartDesign::Pocket", "Pocket012")
body.addObject(pocket13)
pocket13.Profile = sketch17
pocket13.Type = "ThroughAll"
body2 = doc.addObject("PartDesign::Body", "Body001")

# Sketch on XY plane
sketch18 = doc.addObject("Sketcher::SketchObject", "Sketch017")
body2.addObject(sketch18)
sketch18.AttachmentSupport = (doc.getObject("XY_Plane001"), [""])
sketch18.MapMode = "FlatFace"
sketch18.addGeometry([
    Part.LineSegment(Vector(70.9, 27.9, 0), Vector(70.9, 24.9, 0)),
    Part.LineSegment(Vector(70.9, 24.9, 0), Vector(129.3, 24.9, 0)),
    Part.LineSegment(Vector(129.3, 24.9, 0), Vector(129.3, 27.9, 0)),
    Part.LineSegment(Vector(129.3, 27.9, 0), Vector(70.9, 27.9, 0)),
], False)
sketch18.addConstraint([
    Sketcher.Constraint("Coincident", 0, 2, 1, 1),
    Sketcher.Constraint("Coincident", 1, 2, 2, 1),
    Sketcher.Constraint("Coincident", 2, 2, 3, 1),
    Sketcher.Constraint("Coincident", 3, 2, 0, 1),
    Sketcher.Constraint("Vertical", 0),
    Sketcher.Constraint("Horizontal", 1),
    Sketcher.Constraint("Vertical", 2),
    Sketcher.Constraint("Horizontal", 3),
    Sketcher.Constraint("DistanceY", 0, 2, 0, 1, 3.0),
    Sketcher.Constraint("DistanceX", 1, 1, 1, 2, 58.39),
    Sketcher.Constraint("DistanceX", -1, 1, 0, 2, 70.885958),
    Sketcher.Constraint("DistanceY", -1, 1, 0, 2, 24.892304),
])
pad3 = doc.addObject("PartDesign::Pad", "Pad002")
body2.addObject(pad3)
pad3.Profile = sketch18
pad3.Length = 16.5

# Sketch on XY plane
sketch19 = doc.addObject("Sketcher::SketchObject", "Sketch018")
body2.addObject(sketch19)
sketch19.AttachmentSupport = (doc.getObject("XY_Plane001"), [""])
sketch19.MapMode = "FlatFace"
sketch19.AttachmentOffset = App.Placement(Vector(0, 0, 16.5), App.Rotation())
sketch19.addGeometry([
    Part.LineSegment(Vector(122.1, 24.9, 0), Vector(122.1, 9.9, 0)),  # 0
    Part.LineSegment(Vector(122.1, 9.9, 0), Vector(125.1, 9.9, 0)),  # 1
    Part.LineSegment(Vector(125.1, 9.9, 0), Vector(125.1, 24.9, 0)),  # 2
    Part.LineSegment(Vector(125.1, 24.9, 0), Vector(122.1, 24.9, 0)),  # 3
    Part.LineSegment(Vector(75.1, 24.9, 0), Vector(75.1, 9.9, 0)),  # 4
    Part.LineSegment(Vector(75.1, 9.9, 0), Vector(78.1, 9.9, 0)),  # 5
    Part.LineSegment(Vector(78.1, 9.9, 0), Vector(78.1, 24.9, 0)),  # 6
    Part.LineSegment(Vector(78.1, 24.9, 0), Vector(75.1, 24.9, 0)),  # 7
], False)
sketch19.addConstraint([
    Sketcher.Constraint("Coincident", 0, 2, 1, 1),
    Sketcher.Constraint("Coincident", 1, 2, 2, 1),
    Sketcher.Constraint("Coincident", 2, 2, 3, 1),
    Sketcher.Constraint("Coincident", 3, 2, 0, 1),
    Sketcher.Constraint("Coincident", 4, 2, 5, 1),
    Sketcher.Constraint("Coincident", 5, 2, 6, 1),
    Sketcher.Constraint("Coincident", 6, 2, 7, 1),
    Sketcher.Constraint("Coincident", 7, 2, 4, 1),
    Sketcher.Constraint("Vertical", 0),
    Sketcher.Constraint("Horizontal", 1),
    Sketcher.Constraint("Vertical", 2),
    Sketcher.Constraint("Horizontal", 3),
    Sketcher.Constraint("Vertical", 4),
    Sketcher.Constraint("Horizontal", 5),
    Sketcher.Constraint("Vertical", 6),
    Sketcher.Constraint("Horizontal", 7),
    Sketcher.Constraint("Horizontal", 1, 2, 4, 2),
    Sketcher.Constraint("Horizontal", 3, 2, 6, 2),
    Sketcher.Constraint("Equal", 3, 5),
    Sketcher.Constraint("DistanceX", 1, 1, 1, 2, 3.0),
    Sketcher.Constraint("DistanceY", 0, 2, 0, 1, 15.0),
    Sketcher.Constraint("DistanceX", 4, 2, 0, 2, 47.0),
    Sketcher.Constraint("DistanceX", -1, 1, 0, 2, 122.080958),
    Sketcher.Constraint("DistanceY", -1, 1, 0, 2, 9.892304),
])
pad4 = doc.addObject("PartDesign::Pad", "Pad003")
body2.addObject(pad4)
pad4.Profile = sketch19
pad4.Length = 16.5
pad4.Reversed = True

# Sketch on XZ plane
sketch20 = doc.addObject("Sketcher::SketchObject", "Sketch019")
body2.addObject(sketch20)
sketch20.AttachmentSupport = (doc.getObject("XZ_Plane001"), [""])
sketch20.MapMode = "FlatFace"
sketch20.AttachmentOffset = App.Placement(Vector(0, 0, -24.892304), App.Rotation())
sketch20.addGeometry([
    Part.LineSegment(Vector(78.1, 16.5, 0), Vector(78.1, 14.5, 0)),  # 0
    Part.LineSegment(Vector(78.1, 14.5, 0), Vector(94.6, 14.5, 0)),  # 1
    Part.LineSegment(Vector(94.6, 14.5, 0), Vector(94.6, 11, 0)),  # 2
    Part.LineSegment(Vector(94.6, 11, 0), Vector(105.6, 11, 0)),  # 3
    Part.LineSegment(Vector(105.6, 11, 0), Vector(105.6, 14.5, 0)),  # 4
    Part.LineSegment(Vector(105.6, 14.5, 0), Vector(122.1, 14.5, 0)),  # 5
    Part.LineSegment(Vector(122.1, 14.5, 0), Vector(122.1, 16.5, 0)),  # 6
    Part.LineSegment(Vector(122.1, 16.5, 0), Vector(78.1, 16.5, 0)),  # 7
], False)
sketch20.addConstraint([
    Sketcher.Constraint("Coincident", 0, 2, 1, 1),
    Sketcher.Constraint("Coincident", 1, 2, 2, 1),
    Sketcher.Constraint("Coincident", 2, 2, 3, 1),
    Sketcher.Constraint("Coincident", 3, 2, 4, 1),
    Sketcher.Constraint("Coincident", 4, 2, 5, 1),
    Sketcher.Constraint("Coincident", 5, 2, 6, 1),
    Sketcher.Constraint("Coincident", 6, 2, 7, 1),
    Sketcher.Constraint("Coincident", 7, 2, 0, 1),
    Sketcher.Constraint("Vertical", 0),
    Sketcher.Constraint("Horizontal", 1),
    Sketcher.Constraint("Vertical", 2),
    Sketcher.Constraint("Horizontal", 3),
    Sketcher.Constraint("Vertical", 4),
    Sketcher.Constraint("Horizontal", 5),
    Sketcher.Constraint("Vertical", 6),
    Sketcher.Constraint("Horizontal", 7),
    Sketcher.Constraint("Horizontal", 1, 2, 4, 2),
    Sketcher.Constraint("Equal", 1, 5),
    Sketcher.Constraint("DistanceX", 3, 1, 3, 2, 11.0),
    Sketcher.Constraint("DistanceX", 7, 2, 7, 1, 44.0),
    Sketcher.Constraint("DistanceY", 0, 2, 0, 1, 2.0),
    Sketcher.Constraint("DistanceY", 2, 2, 2, 1, 3.5),
    Sketcher.Constraint("DistanceY", -1, 1, 2, 2, 11.0),
    Sketcher.Constraint("DistanceX", -1, 1, 0, 2, 78.080958),
])
pocket14 = doc.addObject("PartDesign::Pocket", "Pocket013")
body2.addObject(pocket14)
pocket14.Profile = sketch20
pocket14.Type = "ThroughAll"

# Sketch on XY plane
sketch21 = doc.addObject("Sketcher::SketchObject", "Sketch020")
body2.addObject(sketch21)
sketch21.AttachmentSupport = (doc.getObject("XY_Plane001"), [""])
sketch21.MapMode = "FlatFace"
sketch21.AttachmentOffset = App.Placement(Vector(0, 0, 16.5), App.Rotation())
sketch21.addGeometry([
    Part.LineSegment(Vector(75.1, 22.9, 0), Vector(75.1, 16.9, 0)),  # 0
    Part.LineSegment(Vector(75.1, 16.9, 0), Vector(78.1, 16.9, 0)),  # 1
    Part.LineSegment(Vector(78.1, 16.9, 0), Vector(78.1, 22.9, 0)),  # 2
    Part.LineSegment(Vector(78.1, 22.9, 0), Vector(75.1, 22.9, 0)),  # 3
    Part.LineSegment(Vector(122.1, 22.9, 0), Vector(122.1, 16.9, 0)),  # 4
    Part.LineSegment(Vector(122.1, 16.9, 0), Vector(125.1, 16.9, 0)),  # 5
    Part.LineSegment(Vector(125.1, 16.9, 0), Vector(125.1, 22.9, 0)),  # 6
    Part.LineSegment(Vector(125.1, 22.9, 0), Vector(122.1, 22.9, 0)),  # 7
], False)
sketch21.addConstraint([
    Sketcher.Constraint("Coincident", 0, 2, 1, 1),
    Sketcher.Constraint("Coincident", 1, 2, 2, 1),
    Sketcher.Constraint("Coincident", 2, 2, 3, 1),
    Sketcher.Constraint("Coincident", 3, 2, 0, 1),
    Sketcher.Constraint("Coincident", 4, 2, 5, 1),
    Sketcher.Constraint("Coincident", 5, 2, 6, 1),
    Sketcher.Constraint("Coincident", 6, 2, 7, 1),
    Sketcher.Constraint("Coincident", 7, 2, 4, 1),
    Sketcher.Constraint("Vertical", 0),
    Sketcher.Constraint("Horizontal", 1),
    Sketcher.Constraint("Vertical", 2),
    Sketcher.Constraint("Horizontal", 3),
    Sketcher.Constraint("Vertical", 4),
    Sketcher.Constraint("Horizontal", 5),
    Sketcher.Constraint("Vertical", 6),
    Sketcher.Constraint("Horizontal", 7),
    Sketcher.Constraint("Horizontal", 1, 2, 4, 2),
    Sketcher.Constraint("Horizontal", 3, 2, 6, 2),
    Sketcher.Constraint("Equal", 3, 5),
    Sketcher.Constraint("DistanceX", 1, 1, 1, 2, 3.0),
    Sketcher.Constraint("DistanceY", 0, 2, 0, 1, 6.0),
    Sketcher.Constraint("DistanceX", 1, 2, 4, 2, 44.0),
    Sketcher.Constraint("DistanceX", -1, 1, 0, 2, 75.080958),
    Sketcher.Constraint("DistanceY", -1, 1, 0, 2, 16.892304),
])
pad5 = doc.addObject("PartDesign::Pad", "Pad004")
body2.addObject(pad5)
pad5.Profile = sketch21
pad5.Length = 3
doc.recompute()

chamfer4 = doc.addObject("PartDesign::Chamfer", "Chamfer003")
body2.addObject(chamfer4)
chamfer4.Base = (pad5, edges_at(pad5, [(129.276, 27.892, 8.25), (100.081, 27.892, 0), (70.886, 27.892, 8.25)]))
chamfer4.Size = 1

# Sketch on XY plane
sketch22 = doc.addObject("Sketcher::SketchObject", "Sketch021")
body2.addObject(sketch22)
sketch22.AttachmentSupport = (doc.getObject("XY_Plane001"), [""])
sketch22.MapMode = "FlatFace"
sketch22.addGeometry([
    Part.Circle(Vector(86.6, 23.4, 0), Vector(0, 0, 1), 3),
    Part.Circle(Vector(113.6, 23.4, 0), Vector(0, 0, 1), 3),
], False)
sketch22.addConstraint([
    Sketcher.Constraint("Equal", 0, 1),
    Sketcher.Constraint("Horizontal", 0, 3, 1, 3),
    Sketcher.Constraint("Diameter", 0, 6.0),
    Sketcher.Constraint("DistanceX", 0, 3, 1, 3, 27.0),
    Sketcher.Constraint("DistanceX", -1, 1, 0, 3, 86.580958),
    Sketcher.Constraint("DistanceY", -1, 1, 0, 3, 23.422304),
])
pocket15 = doc.addObject("PartDesign::Pocket", "Pocket014")
body2.addObject(pocket15)
pocket15.Profile = sketch22
pocket15.Type = "ThroughAll"
pocket15.Midplane = True

# Sketch on XZ plane
sketch23 = doc.addObject("Sketcher::SketchObject", "Sketch022")
body2.addObject(sketch23)
sketch23.AttachmentSupport = (doc.getObject("XZ_Plane001"), [""])
sketch23.MapMode = "FlatFace"
sketch23.AttachmentOffset = App.Placement(Vector(0, 0, -27.892304), App.Rotation())
sketch23.addGeometry([
    Part.LineSegment(Vector(96.9, 7.8, 0), Vector(98.5, 10.5, 0)),  # 0
    Part.LineSegment(Vector(98.5, 10.5, 0), Vector(101.7, 10.5, 0)),  # 1
    Part.LineSegment(Vector(101.7, 10.5, 0), Vector(103.3, 7.8, 0)),  # 2
    Part.LineSegment(Vector(103.3, 7.8, 0), Vector(101.7, 5, 0)),  # 3
    Part.LineSegment(Vector(101.7, 5, 0), Vector(98.5, 5, 0)),  # 4
    Part.LineSegment(Vector(98.5, 5, 0), Vector(96.9, 7.8, 0)),  # 5
], False)
sketch23.addConstraint([
    Sketcher.Constraint("Coincident", 0, 2, 1, 1),
    Sketcher.Constraint("Coincident", 1, 2, 2, 1),
    Sketcher.Constraint("Coincident", 2, 2, 3, 1),
    Sketcher.Constraint("Coincident", 3, 2, 4, 1),
    Sketcher.Constraint("Coincident", 4, 2, 5, 1),
    Sketcher.Constraint("Coincident", 5, 2, 0, 1),
    Sketcher.Constraint("Horizontal", 1),
    Sketcher.Constraint("Horizontal", 4),
    Sketcher.Constraint("Parallel", 0, 3),
    Sketcher.Constraint("Parallel", 2, 5),
    Sketcher.Constraint("Horizontal", 2, 2, 5, 2),
    Sketcher.Constraint("Vertical", 1, 2, 3, 2),
    Sketcher.Constraint("Vertical", 0, 2, 4, 2),
    Sketcher.Constraint("Angle", 0, Q("60.000004 deg")),
    Sketcher.Constraint("DistanceY", -1, 1, 3, 2, 5.0),
    Sketcher.Constraint("DistanceY", -1, 1, 0, 2, 10.5),
    Sketcher.Constraint("DistanceX", 1, 1, 1, 2, 3.175426),
    Sketcher.Constraint("DistanceX", -1, 1, 1, 2, 101.668671),
])
pocket16 = doc.addObject("PartDesign::Pocket", "Pocket015")
body2.addObject(pocket16)
pocket16.Profile = sketch23
pocket16.Length = 1.5
pocket16.Reversed = True

# Sketch on XZ plane
sketch24 = doc.addObject("Sketcher::SketchObject", "Sketch023")
body2.addObject(sketch24)
sketch24.AttachmentSupport = (doc.getObject("XZ_Plane001"), [""])
sketch24.MapMode = "FlatFace"
sketch24.AttachmentOffset = App.Placement(Vector(0, 0, -26.392304), App.Rotation())
sketch24.addGeometry(Part.Circle(Vector(100.1, 8.2, 0), Vector(0, 0, 1), 1.6), False)
sketch24.addConstraint([
    Sketcher.Constraint("Diameter", 0, 3.2),
    Sketcher.Constraint("DistanceY", -1, 1, 0, 3, 8.25),
    Sketcher.Constraint("DistanceX", -1, 1, 0, 3, 100.080958),
])
pocket17 = doc.addObject("PartDesign::Pocket", "Pocket016")
body2.addObject(pocket17)
pocket17.Profile = sketch24
pocket17.Type = "ThroughAll"
pocket17.Reversed = True

# Sketch on XZ plane
sketch25 = doc.addObject("Sketcher::SketchObject", "Sketch024")
body2.addObject(sketch25)
sketch25.AttachmentSupport = (doc.getObject("XZ_Plane001"), [""])
sketch25.MapMode = "FlatFace"
sketch25.AttachmentOffset = App.Placement(Vector(0, 0, -27.892304), App.Rotation())
sketch25.addGeometry([
    Part.LineSegment(Vector(129.3, 1, 0), Vector(129.3, 0, 0)),
    Part.LineSegment(Vector(129.3, 0, 0), Vector(70.9, 0, 0)),
    Part.LineSegment(Vector(70.9, 0, 0), Vector(70.9, 1, 0)),
    Part.LineSegment(Vector(70.9, 1, 0), Vector(129.3, 1, 0)),
], False)
sketch25.addConstraint([
    Sketcher.Constraint("Coincident", 0, 2, 1, 1),
    Sketcher.Constraint("Coincident", 1, 2, 2, 1),
    Sketcher.Constraint("Coincident", 2, 2, 3, 1),
    Sketcher.Constraint("Coincident", 3, 2, 0, 1),
    Sketcher.Constraint("Vertical", 0),
    Sketcher.Constraint("Horizontal", 1),
    Sketcher.Constraint("Vertical", 2),
    Sketcher.Constraint("Horizontal", 3),
    Sketcher.Constraint("PointOnObject", 0, 2, -1),
    Sketcher.Constraint("DistanceY", 0, 2, 0, 1, 1.0),
    Sketcher.Constraint("DistanceX", 1, 2, 1, 1, 58.39),
    Sketcher.Constraint("DistanceX", -1, 1, 0, 2, 129.275958),
])
pocket18 = doc.addObject("PartDesign::Pocket", "Pocket017")
body2.addObject(pocket18)
pocket18.Profile = sketch25
pocket18.Type = "ThroughAll"
pocket18.Reversed = True
doc.recompute()

chamfer5 = doc.addObject("PartDesign::Chamfer", "Chamfer004")
body2.addObject(chamfer5)
chamfer5.Base = (pocket18, edges_at(pocket18, [(100.081, 27.892, 1)]))
chamfer5.Size = 1
doc.recompute()

chamfer6 = doc.addObject("PartDesign::Chamfer", "Chamfer005")
body2.addObject(chamfer6)
chamfer6.Base = (chamfer5, edges_at(chamfer5, [(94.581, 26.392, 14.5), (105.581, 26.392, 14.5)]))
chamfer6.Size = 3
body3 = doc.addObject("PartDesign::Body", "Body002")
doc.recompute()

body2.Placement = App.Placement(Vector(0, 0, -1), App.Rotation(Vector(0, 0, 1), 0))
boolean = doc.addObject("PartDesign::Boolean", "Boolean")
body3.addObject(boolean)
boolean.Type = "Fuse"
boolean.addObjects([body2])

doc.recompute()
